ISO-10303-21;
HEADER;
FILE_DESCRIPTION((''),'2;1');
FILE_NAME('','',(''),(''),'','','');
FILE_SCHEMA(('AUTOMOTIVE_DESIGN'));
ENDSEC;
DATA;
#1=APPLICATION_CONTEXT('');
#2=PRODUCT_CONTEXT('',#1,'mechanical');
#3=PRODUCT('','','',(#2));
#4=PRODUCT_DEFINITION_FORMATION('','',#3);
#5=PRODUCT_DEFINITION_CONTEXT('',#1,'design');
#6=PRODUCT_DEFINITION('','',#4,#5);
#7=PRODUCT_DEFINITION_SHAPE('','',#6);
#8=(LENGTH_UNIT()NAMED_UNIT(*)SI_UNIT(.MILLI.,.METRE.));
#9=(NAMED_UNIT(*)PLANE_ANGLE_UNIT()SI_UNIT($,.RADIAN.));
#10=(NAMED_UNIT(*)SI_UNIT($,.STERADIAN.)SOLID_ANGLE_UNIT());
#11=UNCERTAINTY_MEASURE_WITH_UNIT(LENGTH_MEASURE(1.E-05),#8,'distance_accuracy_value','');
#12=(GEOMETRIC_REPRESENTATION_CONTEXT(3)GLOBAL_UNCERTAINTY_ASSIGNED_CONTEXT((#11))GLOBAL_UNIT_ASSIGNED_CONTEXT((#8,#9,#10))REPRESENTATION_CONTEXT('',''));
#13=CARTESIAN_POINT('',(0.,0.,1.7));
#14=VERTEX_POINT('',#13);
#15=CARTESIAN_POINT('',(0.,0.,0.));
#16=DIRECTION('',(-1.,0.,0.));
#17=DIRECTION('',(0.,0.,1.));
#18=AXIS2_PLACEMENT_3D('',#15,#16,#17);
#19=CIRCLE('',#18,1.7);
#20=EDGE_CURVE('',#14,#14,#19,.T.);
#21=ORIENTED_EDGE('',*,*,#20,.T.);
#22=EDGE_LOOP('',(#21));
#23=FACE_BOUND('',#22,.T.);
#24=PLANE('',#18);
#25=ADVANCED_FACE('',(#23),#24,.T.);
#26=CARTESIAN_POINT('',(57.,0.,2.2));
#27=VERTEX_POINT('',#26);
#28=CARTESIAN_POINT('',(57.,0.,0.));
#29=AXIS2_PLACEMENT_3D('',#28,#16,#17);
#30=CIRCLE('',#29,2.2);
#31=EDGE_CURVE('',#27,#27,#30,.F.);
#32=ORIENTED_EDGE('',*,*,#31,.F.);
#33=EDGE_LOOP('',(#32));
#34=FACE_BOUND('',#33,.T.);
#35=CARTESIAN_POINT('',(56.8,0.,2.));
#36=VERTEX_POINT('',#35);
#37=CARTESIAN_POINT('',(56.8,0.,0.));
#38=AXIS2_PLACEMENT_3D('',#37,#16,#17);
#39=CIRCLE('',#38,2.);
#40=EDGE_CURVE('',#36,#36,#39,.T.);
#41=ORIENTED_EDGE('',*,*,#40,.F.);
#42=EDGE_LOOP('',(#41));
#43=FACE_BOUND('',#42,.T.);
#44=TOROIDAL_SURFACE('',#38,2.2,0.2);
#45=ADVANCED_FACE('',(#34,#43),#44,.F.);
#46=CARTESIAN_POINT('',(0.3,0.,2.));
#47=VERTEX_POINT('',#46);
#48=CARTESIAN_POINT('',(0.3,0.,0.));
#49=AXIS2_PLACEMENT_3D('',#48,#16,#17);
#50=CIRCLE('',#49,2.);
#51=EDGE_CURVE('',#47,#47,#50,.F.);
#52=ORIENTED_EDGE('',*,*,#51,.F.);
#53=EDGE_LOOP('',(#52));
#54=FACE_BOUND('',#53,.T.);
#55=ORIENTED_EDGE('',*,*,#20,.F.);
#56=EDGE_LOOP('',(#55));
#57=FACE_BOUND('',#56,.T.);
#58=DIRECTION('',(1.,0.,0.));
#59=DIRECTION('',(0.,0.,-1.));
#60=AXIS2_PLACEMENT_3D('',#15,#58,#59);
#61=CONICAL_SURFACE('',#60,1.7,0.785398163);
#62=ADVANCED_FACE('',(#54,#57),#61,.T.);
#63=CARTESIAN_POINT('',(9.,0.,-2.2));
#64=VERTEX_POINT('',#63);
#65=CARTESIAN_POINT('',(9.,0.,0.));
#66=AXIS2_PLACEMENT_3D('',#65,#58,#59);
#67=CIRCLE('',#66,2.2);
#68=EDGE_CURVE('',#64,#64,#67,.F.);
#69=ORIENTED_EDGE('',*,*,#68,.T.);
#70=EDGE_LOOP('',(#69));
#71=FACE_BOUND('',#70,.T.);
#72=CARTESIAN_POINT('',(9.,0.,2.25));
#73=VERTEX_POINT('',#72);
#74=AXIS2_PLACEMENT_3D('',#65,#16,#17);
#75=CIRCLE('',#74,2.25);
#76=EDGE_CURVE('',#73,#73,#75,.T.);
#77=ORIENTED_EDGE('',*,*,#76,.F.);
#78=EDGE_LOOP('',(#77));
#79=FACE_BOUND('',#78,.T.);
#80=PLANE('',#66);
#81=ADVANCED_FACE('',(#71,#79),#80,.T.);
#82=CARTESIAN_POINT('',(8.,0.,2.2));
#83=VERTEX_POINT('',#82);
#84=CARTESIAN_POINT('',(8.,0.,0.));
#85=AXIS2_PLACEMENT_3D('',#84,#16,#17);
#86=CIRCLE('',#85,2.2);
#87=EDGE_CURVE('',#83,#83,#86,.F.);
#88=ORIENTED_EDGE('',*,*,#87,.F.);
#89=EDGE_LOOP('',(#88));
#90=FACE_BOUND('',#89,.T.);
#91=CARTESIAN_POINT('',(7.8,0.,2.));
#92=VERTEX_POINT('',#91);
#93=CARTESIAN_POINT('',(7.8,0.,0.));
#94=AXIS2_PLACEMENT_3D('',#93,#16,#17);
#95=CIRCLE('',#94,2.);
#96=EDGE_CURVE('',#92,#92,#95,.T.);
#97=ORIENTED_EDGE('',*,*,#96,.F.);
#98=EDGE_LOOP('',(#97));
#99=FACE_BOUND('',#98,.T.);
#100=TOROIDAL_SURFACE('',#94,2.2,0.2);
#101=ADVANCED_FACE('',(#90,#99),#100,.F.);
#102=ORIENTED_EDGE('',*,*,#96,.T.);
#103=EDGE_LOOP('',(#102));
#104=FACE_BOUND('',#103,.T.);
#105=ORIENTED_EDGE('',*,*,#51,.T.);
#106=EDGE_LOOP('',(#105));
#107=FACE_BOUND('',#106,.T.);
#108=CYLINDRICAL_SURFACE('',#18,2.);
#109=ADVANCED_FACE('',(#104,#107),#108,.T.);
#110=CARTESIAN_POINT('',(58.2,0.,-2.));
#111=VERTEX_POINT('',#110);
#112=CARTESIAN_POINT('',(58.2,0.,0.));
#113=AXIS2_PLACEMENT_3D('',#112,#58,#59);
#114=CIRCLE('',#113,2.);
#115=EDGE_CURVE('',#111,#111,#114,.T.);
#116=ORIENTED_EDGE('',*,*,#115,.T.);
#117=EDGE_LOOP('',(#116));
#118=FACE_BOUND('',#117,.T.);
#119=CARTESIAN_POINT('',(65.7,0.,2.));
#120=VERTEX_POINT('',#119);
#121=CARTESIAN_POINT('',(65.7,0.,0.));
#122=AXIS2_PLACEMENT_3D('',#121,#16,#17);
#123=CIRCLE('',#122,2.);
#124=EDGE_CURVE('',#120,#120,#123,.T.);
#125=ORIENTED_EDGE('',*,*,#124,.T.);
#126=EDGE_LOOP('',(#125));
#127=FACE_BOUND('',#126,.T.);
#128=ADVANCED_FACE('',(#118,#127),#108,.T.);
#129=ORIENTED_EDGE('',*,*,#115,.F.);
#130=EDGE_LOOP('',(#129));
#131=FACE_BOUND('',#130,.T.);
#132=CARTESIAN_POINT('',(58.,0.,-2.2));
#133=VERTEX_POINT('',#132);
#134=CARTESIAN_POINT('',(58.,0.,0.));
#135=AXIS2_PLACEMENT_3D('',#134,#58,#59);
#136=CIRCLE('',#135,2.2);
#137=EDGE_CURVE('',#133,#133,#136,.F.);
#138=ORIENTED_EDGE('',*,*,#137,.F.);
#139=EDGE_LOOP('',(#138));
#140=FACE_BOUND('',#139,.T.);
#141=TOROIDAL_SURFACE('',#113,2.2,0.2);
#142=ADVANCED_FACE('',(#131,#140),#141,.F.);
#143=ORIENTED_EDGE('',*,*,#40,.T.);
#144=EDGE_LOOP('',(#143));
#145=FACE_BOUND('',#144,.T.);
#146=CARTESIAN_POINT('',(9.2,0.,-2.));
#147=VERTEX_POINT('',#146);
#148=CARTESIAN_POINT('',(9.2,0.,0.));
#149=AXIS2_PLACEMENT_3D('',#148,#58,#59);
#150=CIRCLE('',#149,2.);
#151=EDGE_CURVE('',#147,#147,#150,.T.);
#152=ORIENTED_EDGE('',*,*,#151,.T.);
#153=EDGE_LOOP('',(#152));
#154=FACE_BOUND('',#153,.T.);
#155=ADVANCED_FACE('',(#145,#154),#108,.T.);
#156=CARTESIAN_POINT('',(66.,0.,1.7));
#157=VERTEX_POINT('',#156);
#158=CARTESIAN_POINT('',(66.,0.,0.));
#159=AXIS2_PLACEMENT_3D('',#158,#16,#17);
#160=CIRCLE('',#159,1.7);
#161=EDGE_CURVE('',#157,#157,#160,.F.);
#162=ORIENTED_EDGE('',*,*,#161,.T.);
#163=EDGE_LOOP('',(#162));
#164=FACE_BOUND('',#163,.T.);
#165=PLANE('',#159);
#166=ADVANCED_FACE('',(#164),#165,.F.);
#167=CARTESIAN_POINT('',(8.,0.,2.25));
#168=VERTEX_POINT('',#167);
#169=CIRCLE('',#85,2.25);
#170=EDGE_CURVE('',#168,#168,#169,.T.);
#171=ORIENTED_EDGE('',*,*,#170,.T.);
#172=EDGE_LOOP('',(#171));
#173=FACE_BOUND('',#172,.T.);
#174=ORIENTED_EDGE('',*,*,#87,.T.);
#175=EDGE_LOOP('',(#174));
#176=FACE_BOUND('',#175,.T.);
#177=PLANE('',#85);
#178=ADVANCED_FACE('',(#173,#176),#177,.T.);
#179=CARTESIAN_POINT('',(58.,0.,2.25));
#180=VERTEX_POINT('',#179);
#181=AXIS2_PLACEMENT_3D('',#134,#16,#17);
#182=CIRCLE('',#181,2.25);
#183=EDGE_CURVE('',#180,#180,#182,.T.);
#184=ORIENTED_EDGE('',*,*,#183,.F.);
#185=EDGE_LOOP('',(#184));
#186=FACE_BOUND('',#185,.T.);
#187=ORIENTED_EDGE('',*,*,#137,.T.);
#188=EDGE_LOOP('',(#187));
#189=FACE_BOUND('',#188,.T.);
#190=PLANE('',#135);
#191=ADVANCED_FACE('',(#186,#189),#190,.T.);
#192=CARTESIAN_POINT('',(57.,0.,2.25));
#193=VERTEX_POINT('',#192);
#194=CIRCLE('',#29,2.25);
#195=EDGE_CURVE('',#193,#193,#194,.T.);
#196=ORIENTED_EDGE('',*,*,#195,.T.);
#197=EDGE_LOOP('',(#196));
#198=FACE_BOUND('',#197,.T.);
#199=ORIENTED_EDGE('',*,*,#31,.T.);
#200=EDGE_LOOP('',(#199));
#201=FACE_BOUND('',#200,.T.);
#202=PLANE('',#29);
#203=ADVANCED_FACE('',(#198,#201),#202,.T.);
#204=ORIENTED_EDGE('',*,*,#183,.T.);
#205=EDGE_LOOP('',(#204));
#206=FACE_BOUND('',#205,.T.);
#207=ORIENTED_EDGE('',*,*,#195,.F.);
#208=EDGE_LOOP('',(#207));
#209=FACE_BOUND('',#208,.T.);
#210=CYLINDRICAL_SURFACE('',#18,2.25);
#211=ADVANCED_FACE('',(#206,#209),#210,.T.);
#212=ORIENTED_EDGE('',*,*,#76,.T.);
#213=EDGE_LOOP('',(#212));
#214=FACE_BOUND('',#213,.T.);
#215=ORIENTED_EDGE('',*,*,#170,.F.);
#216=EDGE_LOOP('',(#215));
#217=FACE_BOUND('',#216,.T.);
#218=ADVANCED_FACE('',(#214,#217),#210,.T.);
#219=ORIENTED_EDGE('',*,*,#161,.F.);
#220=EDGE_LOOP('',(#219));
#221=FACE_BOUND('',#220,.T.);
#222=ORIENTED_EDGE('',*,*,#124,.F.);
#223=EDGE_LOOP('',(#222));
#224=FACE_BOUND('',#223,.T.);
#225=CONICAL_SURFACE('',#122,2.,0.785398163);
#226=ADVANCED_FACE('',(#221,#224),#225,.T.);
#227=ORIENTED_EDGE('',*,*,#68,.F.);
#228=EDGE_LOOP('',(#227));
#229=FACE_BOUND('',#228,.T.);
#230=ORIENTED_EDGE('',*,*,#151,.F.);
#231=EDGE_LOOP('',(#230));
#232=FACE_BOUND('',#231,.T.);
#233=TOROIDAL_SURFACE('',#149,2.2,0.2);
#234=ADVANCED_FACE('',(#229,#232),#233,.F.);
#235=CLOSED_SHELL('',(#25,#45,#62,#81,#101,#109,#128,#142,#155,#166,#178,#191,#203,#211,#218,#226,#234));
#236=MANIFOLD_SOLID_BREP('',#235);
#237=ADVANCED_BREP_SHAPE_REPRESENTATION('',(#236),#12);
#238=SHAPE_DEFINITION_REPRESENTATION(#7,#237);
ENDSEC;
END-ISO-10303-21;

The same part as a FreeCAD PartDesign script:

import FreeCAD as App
import Part
import Sketcher


def edges_at(feature, points):
    """Names of the edges that pass closest to the given points."""
    edges = feature.Shape.Edges
    near = lambda p: min(range(len(edges)), key=lambda i: edges[i].distToShape(Part.Vertex(*p))[0])
    return sorted({f"Edge{near(p) + 1}" for p in points})

doc = App.newDocument("Part")
body = doc.addObject("PartDesign::Body", "Body")

# Sketch on XY plane
sketch1 = body.newObject("Sketcher::SketchObject", "Sketch")
sketch1.AttachmentSupport = (doc.getObject("XY_Plane"), [""])
sketch1.MapMode = "FlatFace"
sketch1.addGeometry(Part.LineSegment(App.Vector(0, 2, 0), App.Vector(0, 0, 0)), False)
sketch1.addGeometry(Part.LineSegment(App.Vector(0, 0, 0), App.Vector(66, 0, 0)), False)
sketch1.addGeometry(Part.LineSegment(App.Vector(66, 0, 0), App.Vector(66, 2, 0)), False)
sketch1.addGeometry(Part.LineSegment(App.Vector(66, 2, 0), App.Vector(58, 2, 0)), False)
sketch1.addGeometry(Part.LineSegment(App.Vector(58, 2, 0), App.Vector(58, 2.25, 0)), False)
sketch1.addGeometry(Part.LineSegment(App.Vector(58, 2.25, 0), App.Vector(57, 2.25, 0)), False)
sketch1.addGeometry(Part.LineSegment(App.Vector(57, 2.25, 0), App.Vector(57, 2, 0)), False)
sketch1.addGeometry(Part.LineSegment(App.Vector(57, 2, 0), App.Vector(9, 2, 0)), False)
sketch1.addGeometry(Part.LineSegment(App.Vector(9, 2, 0), App.Vector(9, 2.25, 0)), False)
sketch1.addGeometry(Part.LineSegment(App.Vector(9, 2.25, 0), App.Vector(8, 2.25, 0)), False)
sketch1.addGeometry(Part.LineSegment(App.Vector(8, 2.25, 0), App.Vector(8, 2, 0)), False)
sketch1.addGeometry(Part.LineSegment(App.Vector(8, 2, 0), App.Vector(0, 2, 0)), False)
sketch1.addConstraint(Sketcher.Constraint("Coincident", 0, 2, 1, 1))
sketch1.addConstraint(Sketcher.Constraint("Coincident", 1, 2, 2, 1))
sketch1.addConstraint(Sketcher.Constraint("Coincident", 2, 2, 3, 1))
sketch1.addConstraint(Sketcher.Constraint("Coincident", 3, 2, 4, 1))
sketch1.addConstraint(Sketcher.Constraint("Coincident", 4, 2, 5, 1))
sketch1.addConstraint(Sketcher.Constraint("Coincident", 5, 2, 6, 1))
sketch1.addConstraint(Sketcher.Constraint("Coincident", 6, 2, 7, 1))
sketch1.addConstraint(Sketcher.Constraint("Coincident", 7, 2, 8, 1))
sketch1.addConstraint(Sketcher.Constraint("Coincident", 8, 2, 9, 1))
sketch1.addConstraint(Sketcher.Constraint("Coincident", 9, 2, 10, 1))
sketch1.addConstraint(Sketcher.Constraint("Coincident", 10, 2, 11, 1))
sketch1.addConstraint(Sketcher.Constraint("Coincident", 11, 2, 0, 1))
sketch1.addConstraint(Sketcher.Constraint("Vertical", 0))
sketch1.addConstraint(Sketcher.Constraint("Horizontal", 1))
sketch1.addConstraint(Sketcher.Constraint("Vertical", 2))
sketch1.addConstraint(Sketcher.Constraint("Horizontal", 3))
sketch1.addConstraint(Sketcher.Constraint("Vertical", 4))
sketch1.addConstraint(Sketcher.Constraint("Horizontal", 5))
sketch1.addConstraint(Sketcher.Constraint("Vertical", 6))
sketch1.addConstraint(Sketcher.Constraint("Horizontal", 7))
sketch1.addConstraint(Sketcher.Constraint("Vertical", 8))
sketch1.addConstraint(Sketcher.Constraint("Horizontal", 9))
sketch1.addConstraint(Sketcher.Constraint("Vertical", 10))
sketch1.addConstraint(Sketcher.Constraint("Horizontal", 11))
sketch1.addConstraint(Sketcher.Constraint("Coincident", 0, 2, -1, 1))
sketch1.addConstraint(Sketcher.Constraint("Horizontal", 3, 2, 6, 2))
sketch1.addConstraint(Sketcher.Constraint("Horizontal", 5, 2, 8, 2))
sketch1.addConstraint(Sketcher.Constraint("Horizontal", 7, 2, 10, 2))
sketch1.addConstraint(Sketcher.Constraint("Equal", 5, 9))
sketch1.addConstraint(Sketcher.Constraint("Equal", 3, 11))
sketch1.addConstraint(Sketcher.Constraint("DistanceX", 1, 1, 1, 2, 66.0))
sketch1.addConstraint(Sketcher.Constraint("DistanceX", 3, 2, 3, 1, 8.0))
sketch1.addConstraint(Sketcher.Constraint("DistanceX", 5, 2, 5, 1, 1.0))
sketch1.addConstraint(Sketcher.Constraint("DistanceY", 0, 2, 0, 1, 2.0))
sketch1.addConstraint(Sketcher.Constraint("DistanceY", 4, 1, 4, 2, 0.25))
revolution = body.newObject("PartDesign::Revolution", "Revolution")
revolution.Profile = sketch1
revolution.ReferenceAxis = (sketch1, ["H_Axis"])
revolution.Angle = 360
doc.recompute()

fillet = body.newObject("PartDesign::Fillet", "Fillet")
fillet.Base = (revolution, edges_at(revolution, [
    (8, 0, -2),
    (9, 0, -2),
    (57, 0, -2),
    (58, 0, -2),
]))
fillet.Radius = 0.2
doc.recompute()

chamfer = body.newObject("PartDesign::Chamfer", "Chamfer")
chamfer.Base = (fillet, edges_at(fillet, [(0, 0, -2), (66, 0, -2)]))
chamfer.Size = 0.3

doc.recompute()
